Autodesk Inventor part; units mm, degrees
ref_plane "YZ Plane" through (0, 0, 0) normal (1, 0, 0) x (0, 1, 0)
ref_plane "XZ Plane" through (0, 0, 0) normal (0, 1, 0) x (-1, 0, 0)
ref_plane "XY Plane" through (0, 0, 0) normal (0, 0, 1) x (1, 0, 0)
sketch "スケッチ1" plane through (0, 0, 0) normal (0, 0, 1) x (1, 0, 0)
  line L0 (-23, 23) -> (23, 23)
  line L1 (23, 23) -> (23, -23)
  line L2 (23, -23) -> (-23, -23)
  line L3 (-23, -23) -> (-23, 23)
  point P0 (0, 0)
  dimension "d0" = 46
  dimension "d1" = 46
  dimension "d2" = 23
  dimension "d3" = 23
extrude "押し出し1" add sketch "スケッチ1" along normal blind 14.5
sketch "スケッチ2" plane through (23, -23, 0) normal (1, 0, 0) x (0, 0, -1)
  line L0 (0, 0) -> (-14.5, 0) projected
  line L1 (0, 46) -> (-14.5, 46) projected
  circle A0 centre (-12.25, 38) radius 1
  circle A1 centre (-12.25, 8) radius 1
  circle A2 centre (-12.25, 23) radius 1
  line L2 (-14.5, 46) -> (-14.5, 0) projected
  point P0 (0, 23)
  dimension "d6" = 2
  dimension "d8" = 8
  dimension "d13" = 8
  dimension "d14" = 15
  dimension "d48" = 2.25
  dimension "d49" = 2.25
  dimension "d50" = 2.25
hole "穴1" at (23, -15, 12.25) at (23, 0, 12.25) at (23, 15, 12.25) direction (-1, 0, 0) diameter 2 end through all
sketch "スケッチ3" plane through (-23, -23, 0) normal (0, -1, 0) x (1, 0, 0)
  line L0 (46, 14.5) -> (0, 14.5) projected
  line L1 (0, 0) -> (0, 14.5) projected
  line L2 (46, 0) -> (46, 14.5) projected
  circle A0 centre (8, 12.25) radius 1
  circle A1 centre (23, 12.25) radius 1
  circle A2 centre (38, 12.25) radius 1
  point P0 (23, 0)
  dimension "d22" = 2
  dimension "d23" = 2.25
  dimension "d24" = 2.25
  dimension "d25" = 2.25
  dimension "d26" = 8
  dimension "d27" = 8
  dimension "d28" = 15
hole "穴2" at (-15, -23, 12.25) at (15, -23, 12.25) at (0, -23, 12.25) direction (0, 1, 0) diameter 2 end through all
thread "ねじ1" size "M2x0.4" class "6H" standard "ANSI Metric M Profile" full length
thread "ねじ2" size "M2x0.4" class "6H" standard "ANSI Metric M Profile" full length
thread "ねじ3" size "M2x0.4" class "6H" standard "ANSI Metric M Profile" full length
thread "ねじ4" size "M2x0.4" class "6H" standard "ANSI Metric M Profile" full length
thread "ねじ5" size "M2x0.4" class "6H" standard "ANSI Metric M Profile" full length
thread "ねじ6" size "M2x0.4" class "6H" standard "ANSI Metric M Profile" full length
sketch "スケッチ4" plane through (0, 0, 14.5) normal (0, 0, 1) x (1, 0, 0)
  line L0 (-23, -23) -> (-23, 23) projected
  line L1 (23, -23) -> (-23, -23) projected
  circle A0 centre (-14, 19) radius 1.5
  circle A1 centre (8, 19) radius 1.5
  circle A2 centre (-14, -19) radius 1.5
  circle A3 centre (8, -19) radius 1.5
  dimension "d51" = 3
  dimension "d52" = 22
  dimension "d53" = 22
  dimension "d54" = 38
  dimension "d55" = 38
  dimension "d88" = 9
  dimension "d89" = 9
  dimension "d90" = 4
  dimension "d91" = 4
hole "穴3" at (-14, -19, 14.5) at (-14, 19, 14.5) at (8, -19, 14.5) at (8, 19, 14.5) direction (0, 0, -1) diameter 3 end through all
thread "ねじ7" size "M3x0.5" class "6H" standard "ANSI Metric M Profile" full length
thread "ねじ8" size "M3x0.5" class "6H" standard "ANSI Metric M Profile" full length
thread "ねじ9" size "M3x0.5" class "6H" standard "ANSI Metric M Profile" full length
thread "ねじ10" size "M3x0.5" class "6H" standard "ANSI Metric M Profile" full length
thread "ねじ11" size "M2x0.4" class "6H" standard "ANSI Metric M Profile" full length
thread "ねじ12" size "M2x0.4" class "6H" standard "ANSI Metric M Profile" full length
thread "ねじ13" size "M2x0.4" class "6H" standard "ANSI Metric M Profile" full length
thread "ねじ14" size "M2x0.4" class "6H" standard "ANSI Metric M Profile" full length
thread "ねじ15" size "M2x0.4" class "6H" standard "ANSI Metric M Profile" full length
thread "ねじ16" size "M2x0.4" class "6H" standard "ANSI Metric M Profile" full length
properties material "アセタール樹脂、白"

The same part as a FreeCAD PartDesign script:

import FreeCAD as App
import Part
import Sketcher
Q = App.Units.Quantity


def add_polygon(sketch, points):
    """Adds a closed chain of lines whose ends are joined by coincident constraints."""
    first, n = sketch.GeometryCount, len(points)
    for a, b in zip(points, points[1:] + points[:1]):
        sketch.addGeometry(Part.LineSegment(App.Vector(*a, 0), App.Vector(*b, 0)), False)
    for i in range(n):
        sketch.addConstraint(Sketcher.Constraint("Coincident", first + i, 2, first + (i + 1) % n, 1))

doc = App.newDocument("Part")
body = doc.addObject("PartDesign::Body", "Body")

sketch1 = doc.addObject("Sketcher::SketchObject", "Sketch")
body.addObject(sketch1)
sketch1.AttachmentSupport = (doc.XY_Plane, [""])
sketch1.MapMode = "FlatFace"
add_polygon(sketch1, [(23, 23), (-23, 23), (-23, -23), (23, -23)])
sketch1.addConstraint([
    Sketcher.Constraint("Horizontal", 0),
    Sketcher.Constraint("Vertical", 1),
    Sketcher.Constraint("Horizontal", 2),
    Sketcher.Constraint("Vertical", 3),
    Sketcher.Constraint("Symmetric", 0, 2, 2, 2, -1, 1),
    Sketcher.Constraint("Equal", 2, 1),
    Sketcher.Constraint("DistanceX", 0, 2, 0, 1, Q("46 mm")),
])
pad1 = doc.addObject("PartDesign::Pad", "Pad")
body.addObject(pad1)
pad1.Profile = sketch1
pad1.Length = 14.5

sketch2 = doc.addObject("Sketcher::SketchObject", "Sketch001")
body.addObject(sketch2)
sketch2.AttachmentSupport = (doc.YZ_Plane, [""])
sketch2.MapMode = "FlatFace"
sketch2.AttachmentOffset = App.Placement(App.Vector(0, 0, 23), App.Rotation())
sketch2.addGeometry([
    Part.Circle(App.Vector(-15, 12.25, 0), App.Vector(0, 0, 1), 1),
    Part.Circle(App.Vector(0, 12.25, 0), App.Vector(0, 0, 1), 1),
    Part.Circle(App.Vector(15, 12.25, 0), App.Vector(0, 0, 1), 1),
], False)
sketch2.addConstraint([
    Sketcher.Constraint("Equal", 0, 1),
    Sketcher.Constraint("Equal", 1, 2),
    Sketcher.Constraint("Symmetric", 0, 3, 2, 3, -2),
    Sketcher.Constraint("PointOnObject", 1, 3, -2),
    Sketcher.Constraint("Horizontal", 0, 3, 1, 3),
    Sketcher.Constraint("Diameter", 0, Q("2 mm")),
    Sketcher.Constraint("DistanceX", 0, 3, -1, 1, Q("15 mm")),
    Sketcher.Constraint("DistanceY", -1, 1, 0, 3, Q("12.25 mm")),
])
doc.recompute()
hole = doc.addObject("PartDesign::Hole", "Hole")
body.addObject(hole)
hole.Profile = sketch2
hole.ThreadType = "None"
hole.Diameter = 2
hole.DepthType = "ThroughAll"

sketch3 = doc.addObject("Sketcher::SketchObject", "Sketch002")
body.addObject(sketch3)
sketch3.AttachmentSupport = (doc.XZ_Plane, [""])
sketch3.MapMode = "FlatFace"
sketch3.AttachmentOffset = App.Placement(App.Vector(0, 0, 23), App.Rotation())
sketch3.addGeometry([
    Part.Circle(App.Vector(-15, 12.25, 0), App.Vector(0, 0, 1), 1),
    Part.Circle(App.Vector(15, 12.25, 0), App.Vector(0, 0, 1), 1),
    Part.Circle(App.Vector(0, 12.25, 0), App.Vector(0, 0, 1), 1),
], False)
sketch3.addConstraint([
    Sketcher.Constraint("Equal", 0, 1),
    Sketcher.Constraint("Equal", 1, 2),
    Sketcher.Constraint("Symmetric", 0, 3, 1, 3, -2),
    Sketcher.Constraint("PointOnObject", 2, 3, -2),
    Sketcher.Constraint("Horizontal", 1, 3, 2, 3),
    Sketcher.Constraint("Diameter", 0, Q("2 mm")),
    Sketcher.Constraint("DistanceX", 0, 3, -1, 1, Q("15 mm")),
    Sketcher.Constraint("DistanceY", -1, 1, 0, 3, Q("12.25 mm")),
])
doc.recompute()
hole2 = doc.addObject("PartDesign::Hole", "Hole001")
body.addObject(hole2)
hole2.Profile = sketch3
hole2.ThreadType = "None"
hole2.Diameter = 2
hole2.DepthType = "ThroughAll"

sketch4 = doc.addObject("Sketcher::SketchObject", "Sketch003")
body.addObject(sketch4)
sketch4.AttachmentSupport = (doc.XY_Plane, [""])
sketch4.MapMode = "FlatFace"
sketch4.AttachmentOffset = App.Placement(App.Vector(0, 0, 14.5), App.Rotation())
sketch4.addGeometry([
    Part.Circle(App.Vector(-14, -19, 0), App.Vector(0, 0, 1), 1.5),
    Part.Circle(App.Vector(-14, 19, 0), App.Vector(0, 0, 1), 1.5),
    Part.Circle(App.Vector(8, -19, 0), App.Vector(0, 0, 1), 1.5),
    Part.Circle(App.Vector(8, 19, 0), App.Vector(0, 0, 1), 1.5),
], False)
sketch4.addConstraint([
    Sketcher.Constraint("Equal", 0, 1),
    Sketcher.Constraint("Equal", 1, 2),
    Sketcher.Constraint("Equal", 2, 3),
    Sketcher.Constraint("Symmetric", 0, 3, 1, 3, -1),
    Sketcher.Constraint("Symmetric", 2, 3, 3, 3, -1),
    Sketcher.Constraint("Horizontal", 0, 3, 2, 3),
    Sketcher.Constraint("Diameter", 0, Q("3 mm")),
    Sketcher.Constraint("DistanceX", 0, 3, -1, 1, Q("14 mm")),
    Sketcher.Constraint("DistanceY", 0, 3, -1, 1, Q("19 mm")),
    Sketcher.Constraint("DistanceX", -1, 1, 2, 3, Q("8 mm")),
])
doc.recompute()
hole3 = doc.addObject("PartDesign::Hole", "Hole002")
body.addObject(hole3)
hole3.Profile = sketch4
hole3.ThreadType = "None"
hole3.Diameter = 3
hole3.DepthType = "ThroughAll"

doc.recompute()
